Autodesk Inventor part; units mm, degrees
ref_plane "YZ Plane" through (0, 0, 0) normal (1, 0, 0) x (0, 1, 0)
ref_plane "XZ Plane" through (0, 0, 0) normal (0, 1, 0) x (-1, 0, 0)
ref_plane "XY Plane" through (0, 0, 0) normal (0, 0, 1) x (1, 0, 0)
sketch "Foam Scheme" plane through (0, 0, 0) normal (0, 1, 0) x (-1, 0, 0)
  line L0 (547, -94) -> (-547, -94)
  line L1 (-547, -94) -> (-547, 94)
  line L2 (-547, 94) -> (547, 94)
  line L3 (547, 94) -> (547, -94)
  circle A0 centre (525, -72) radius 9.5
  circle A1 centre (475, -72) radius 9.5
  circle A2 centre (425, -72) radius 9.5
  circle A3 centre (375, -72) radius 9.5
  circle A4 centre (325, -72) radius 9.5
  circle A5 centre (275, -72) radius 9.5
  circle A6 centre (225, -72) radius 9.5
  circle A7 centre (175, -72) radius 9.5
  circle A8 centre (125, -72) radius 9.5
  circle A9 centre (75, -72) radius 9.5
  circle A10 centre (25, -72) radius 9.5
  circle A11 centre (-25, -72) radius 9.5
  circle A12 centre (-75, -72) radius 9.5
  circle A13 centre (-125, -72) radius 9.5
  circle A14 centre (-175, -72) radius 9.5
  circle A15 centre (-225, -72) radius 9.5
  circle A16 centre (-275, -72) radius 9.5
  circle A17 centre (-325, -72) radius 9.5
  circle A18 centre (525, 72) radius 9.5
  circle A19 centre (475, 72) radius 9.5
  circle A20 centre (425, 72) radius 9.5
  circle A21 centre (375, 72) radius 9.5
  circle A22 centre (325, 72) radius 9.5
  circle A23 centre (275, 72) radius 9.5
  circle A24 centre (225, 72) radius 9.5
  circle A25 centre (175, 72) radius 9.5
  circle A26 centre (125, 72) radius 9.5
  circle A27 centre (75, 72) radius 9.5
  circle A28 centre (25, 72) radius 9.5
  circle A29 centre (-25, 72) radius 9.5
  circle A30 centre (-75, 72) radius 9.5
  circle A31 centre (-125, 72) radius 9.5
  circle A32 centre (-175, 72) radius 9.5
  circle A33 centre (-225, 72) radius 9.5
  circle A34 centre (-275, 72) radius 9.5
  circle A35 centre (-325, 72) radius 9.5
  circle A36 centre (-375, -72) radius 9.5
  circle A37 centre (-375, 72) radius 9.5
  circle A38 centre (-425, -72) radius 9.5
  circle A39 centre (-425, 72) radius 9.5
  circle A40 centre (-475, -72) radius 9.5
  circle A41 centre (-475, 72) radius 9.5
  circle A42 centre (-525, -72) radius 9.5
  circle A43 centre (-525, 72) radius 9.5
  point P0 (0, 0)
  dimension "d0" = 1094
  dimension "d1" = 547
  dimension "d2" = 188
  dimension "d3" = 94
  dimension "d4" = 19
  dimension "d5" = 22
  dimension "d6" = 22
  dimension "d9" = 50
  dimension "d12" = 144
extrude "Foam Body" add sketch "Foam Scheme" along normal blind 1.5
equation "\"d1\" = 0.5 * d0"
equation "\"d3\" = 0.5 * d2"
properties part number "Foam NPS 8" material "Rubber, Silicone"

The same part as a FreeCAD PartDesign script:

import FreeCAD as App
import Part
import Sketcher

V = App.Vector


def add_polygon(sketch, points):
    """Adds a closed chain of lines whose ends are joined by coincident constraints."""
    first, n = sketch.GeometryCount, len(points)
    for a, b in zip(points, points[1:] + points[:1]):
        sketch.addGeometry(Part.LineSegment(App.Vector(*a, 0), App.Vector(*b, 0)), False)
    for i in range(n):
        sketch.addConstraint(Sketcher.Constraint("Coincident", first + i, 2, first + (i + 1) % n, 1))

doc = App.newDocument("Part")
body = doc.addObject("PartDesign::Body", "Body")

sketch1 = body.newObject("Sketcher::SketchObject", "Sketch")
sketch1.AttachmentSupport = (doc.getObject("XZ_Plane"), [""])
sketch1.MapMode = "FlatFace"
add_polygon(sketch1, [(547, -94), (-547, -94), (-547, 94), (547, 94)])
sketch1.addGeometry(Part.Circle(V(525, -72, 0), V(0, 0, 1), 10), False)
sketch1.addGeometry(Part.Circle(V(475, -72, 0), V(0, 0, 1), 10), False)
sketch1.addGeometry(Part.Circle(V(425, -72, 0), V(0, 0, 1), 10), False)
sketch1.addGeometry(Part.Circle(V(375, -72, 0), V(0, 0, 1), 10), False)
sketch1.addGeometry(Part.Circle(V(325, -72, 0), V(0, 0, 1), 10), False)
sketch1.addGeometry(Part.Circle(V(275, -72, 0), V(0, 0, 1), 10), False)
sketch1.addGeometry(Part.Circle(V(225, -72, 0), V(0, 0, 1), 10), False)
sketch1.addGeometry(Part.Circle(V(175, -72, 0), V(0, 0, 1), 10), False)
sketch1.addGeometry(Part.Circle(V(125, -72, 0), V(0, 0, 1), 10), False)
sketch1.addGeometry(Part.Circle(V(75, -72, 0), V(0, 0, 1), 10), False)
sketch1.addGeometry(Part.Circle(V(25, -72, 0), V(0, 0, 1), 10), False)
sketch1.addGeometry(Part.Circle(V(-25, -72, 0), V(0, 0, 1), 10), False)
sketch1.addGeometry(Part.Circle(V(-75, -72, 0), V(0, 0, 1), 10), False)
sketch1.addGeometry(Part.Circle(V(-125, -72, 0), V(0, 0, 1), 10), False)
sketch1.addGeometry(Part.Circle(V(-175, -72, 0), V(0, 0, 1), 10), False)
sketch1.addGeometry(Part.Circle(V(-225, -72, 0), V(0, 0, 1), 10), False)
sketch1.addGeometry(Part.Circle(V(-275, -72, 0), V(0, 0, 1), 10), False)
sketch1.addGeometry(Part.Circle(V(-325, -72, 0), V(0, 0, 1), 10), False)
sketch1.addGeometry(Part.Circle(V(-375, -72, 0), V(0, 0, 1), 10), False)
sketch1.addGeometry(Part.Circle(V(-425, -72, 0), V(0, 0, 1), 10), False)
sketch1.addGeometry(Part.Circle(V(-475, -72, 0), V(0, 0, 1), 10), False)
sketch1.addGeometry(Part.Circle(V(-525, -72, 0), V(0, 0, 1), 10), False)
sketch1.addGeometry(Part.Circle(V(525, 72, 0), V(0, 0, 1), 10), False)
sketch1.addGeometry(Part.Circle(V(475, 72, 0), V(0, 0, 1), 10), False)
sketch1.addGeometry(Part.Circle(V(425, 72, 0), V(0, 0, 1), 10), False)
sketch1.addGeometry(Part.Circle(V(375, 72, 0), V(0, 0, 1), 10), False)
sketch1.addGeometry(Part.Circle(V(325, 72, 0), V(0, 0, 1), 10), False)
sketch1.addGeometry(Part.Circle(V(275, 72, 0), V(0, 0, 1), 10), False)
sketch1.addGeometry(Part.Circle(V(225, 72, 0), V(0, 0, 1), 10), False)
sketch1.addGeometry(Part.Circle(V(175, 72, 0), V(0, 0, 1), 10), False)
sketch1.addGeometry(Part.Circle(V(125, 72, 0), V(0, 0, 1), 10), False)
sketch1.addGeometry(Part.Circle(V(75, 72, 0), V(0, 0, 1), 10), False)
sketch1.addGeometry(Part.Circle(V(25, 72, 0), V(0, 0, 1), 10), False)
sketch1.addGeometry(Part.Circle(V(-25, 72, 0), V(0, 0, 1), 10), False)
sketch1.addGeometry(Part.Circle(V(-75, 72, 0), V(0, 0, 1), 10), False)
sketch1.addGeometry(Part.Circle(V(-125, 72, 0), V(0, 0, 1), 10), False)
sketch1.addGeometry(Part.Circle(V(-175, 72, 0), V(0, 0, 1), 10), False)
sketch1.addGeometry(Part.Circle(V(-225, 72, 0), V(0, 0, 1), 10), False)
sketch1.addGeometry(Part.Circle(V(-275, 72, 0), V(0, 0, 1), 10), False)
sketch1.addGeometry(Part.Circle(V(-325, 72, 0), V(0, 0, 1), 10), False)
sketch1.addGeometry(Part.Circle(V(-375, 72, 0), V(0, 0, 1), 10), False)
sketch1.addGeometry(Part.Circle(V(-425, 72, 0), V(0, 0, 1), 10), False)
sketch1.addGeometry(Part.Circle(V(-475, 72, 0), V(0, 0, 1), 10), False)
sketch1.addGeometry(Part.Circle(V(-525, 72, 0), V(0, 0, 1), 10), False)
sketch1.addConstraint(Sketcher.Constraint("Horizontal", 0))
sketch1.addConstraint(Sketcher.Constraint("Vertical", 1))
sketch1.addConstraint(Sketcher.Constraint("Horizontal", 2))
sketch1.addConstraint(Sketcher.Constraint("Vertical", 3))
sketch1.addConstraint(Sketcher.Constraint("Equal", 4, 5))
sketch1.addConstraint(Sketcher.Constraint("Equal", 5, 6))
sketch1.addConstraint(Sketcher.Constraint("Equal", 6, 7))
sketch1.addConstraint(Sketcher.Constraint("Equal", 7, 8))
sketch1.addConstraint(Sketcher.Constraint("Equal", 8, 9))
sketch1.addConstraint(Sketcher.Constraint("Equal", 9, 10))
sketch1.addConstraint(Sketcher.Constraint("Equal", 10, 11))
sketch1.addConstraint(Sketcher.Constraint("Equal", 11, 12))
sketch1.addConstraint(Sketcher.Constraint("Equal", 12, 13))
sketch1.addConstraint(Sketcher.Constraint("Equal", 13, 14))
sketch1.addConstraint(Sketcher.Constraint("Equal", 14, 15))
sketch1.addConstraint(Sketcher.Constraint("Equal", 15, 16))
sketch1.addConstraint(Sketcher.Constraint("Equal", 16, 17))
sketch1.addConstraint(Sketcher.Constraint("Equal", 17, 18))
sketch1.addConstraint(Sketcher.Constraint("Equal", 18, 19))
sketch1.addConstraint(Sketcher.Constraint("Equal", 19, 20))
sketch1.addConstraint(Sketcher.Constraint("Equal", 20, 21))
sketch1.addConstraint(Sketcher.Constraint("Equal", 21, 22))
sketch1.addConstraint(Sketcher.Constraint("Equal", 22, 23))
sketch1.addConstraint(Sketcher.Constraint("Equal", 23, 24))
sketch1.addConstraint(Sketcher.Constraint("Equal", 24, 25))
sketch1.addConstraint(Sketcher.Constraint("Equal", 25, 26))
sketch1.addConstraint(Sketcher.Constraint("Equal", 26, 27))
sketch1.addConstraint(Sketcher.Constraint("Equal", 27, 28))
sketch1.addConstraint(Sketcher.Constraint("Equal", 28, 29))
sketch1.addConstraint(Sketcher.Constraint("Equal", 29, 30))
sketch1.addConstraint(Sketcher.Constraint("Equal", 30, 31))
sketch1.addConstraint(Sketcher.Constraint("Equal", 31, 32))
sketch1.addConstraint(Sketcher.Constraint("Equal", 32, 33))
sketch1.addConstraint(Sketcher.Constraint("Equal", 33, 34))
sketch1.addConstraint(Sketcher.Constraint("Equal", 34, 35))
sketch1.addConstraint(Sketcher.Constraint("Equal", 35, 36))
sketch1.addConstraint(Sketcher.Constraint("Equal", 36, 37))
sketch1.addConstraint(Sketcher.Constraint("Equal", 37, 38))
sketch1.addConstraint(Sketcher.Constraint("Equal", 38, 39))
sketch1.addConstraint(Sketcher.Constraint("Equal", 39, 40))
sketch1.addConstraint(Sketcher.Constraint("Equal", 40, 41))
sketch1.addConstraint(Sketcher.Constraint("Equal", 41, 42))
sketch1.addConstraint(Sketcher.Constraint("Equal", 42, 43))
sketch1.addConstraint(Sketcher.Constraint("Equal", 43, 44))
sketch1.addConstraint(Sketcher.Constraint("Equal", 44, 45))
sketch1.addConstraint(Sketcher.Constraint("Equal", 45, 46))
sketch1.addConstraint(Sketcher.Constraint("Equal", 46, 47))
sketch1.addConstraint(Sketcher.Constraint("Symmetric", 25, 3, 26, 3, -1, 1))
sketch1.addConstraint(Sketcher.Constraint("Symmetric", 24, 3, 27, 3, -1, 1))
sketch1.addConstraint(Sketcher.Constraint("Symmetric", 23, 3, 28, 3, -1, 1))
sketch1.addConstraint(Sketcher.Constraint("Symmetric", 22, 3, 29, 3, -1, 1))
sketch1.addConstraint(Sketcher.Constraint("Symmetric", 21, 3, 30, 3, -1, 1))
sketch1.addConstraint(Sketcher.Constraint("Symmetric", 20, 3, 31, 3, -1, 1))
sketch1.addConstraint(Sketcher.Constraint("Symmetric", 19, 3, 32, 3, -1, 1))
sketch1.addConstraint(Sketcher.Constraint("Symmetric", 18, 3, 33, 3, -1, 1))
sketch1.addConstraint(Sketcher.Constraint("Symmetric", 17, 3, 34, 3, -1, 1))
sketch1.addConstraint(Sketcher.Constraint("Symmetric", 16, 3, 35, 3, -1, 1))
sketch1.addConstraint(Sketcher.Constraint("Symmetric", 15, 3, 36, 3, -1, 1))
sketch1.addConstraint(Sketcher.Constraint("Symmetric", 14, 3, 37, 3, -1, 1))
sketch1.addConstraint(Sketcher.Constraint("Symmetric", 13, 3, 38, 3, -1, 1))
sketch1.addConstraint(Sketcher.Constraint("Symmetric", 12, 3, 39, 3, -1, 1))
sketch1.addConstraint(Sketcher.Constraint("Symmetric", 11, 3, 40, 3, -1, 1))
sketch1.addConstraint(Sketcher.Constraint("Symmetric", 10, 3, 41, 3, -1, 1))
sketch1.addConstraint(Sketcher.Constraint("Symmetric", 9, 3, 42, 3, -1, 1))
sketch1.addConstraint(Sketcher.Constraint("Symmetric", 8, 3, 43, 3, -1, 1))
sketch1.addConstraint(Sketcher.Constraint("Symmetric", 7, 3, 44, 3, -1, 1))
sketch1.addConstraint(Sketcher.Constraint("Symmetric", 6, 3, 45, 3, -1, 1))
sketch1.addConstraint(Sketcher.Constraint("Symmetric", 5, 3, 46, 3, -1, 1))
sketch1.addConstraint(Sketcher.Constraint("Symmetric", 4, 3, 47, 3, -1, 1))
sketch1.addConstraint(Sketcher.Constraint("Symmetric", 0, 2, 2, 2, -1, 1))
sketch1.addConstraint(Sketcher.Constraint("Symmetric", 14, 3, 15, 3, -2))
sketch1.addConstraint(Sketcher.Constraint("Symmetric", 13, 3, 16, 3, -2))
sketch1.addConstraint(Sketcher.Constraint("Symmetric", 12, 3, 17, 3, -2))
sketch1.addConstraint(Sketcher.Constraint("Symmetric", 11, 3, 18, 3, -2))
sketch1.addConstraint(Sketcher.Constraint("Symmetric", 10, 3, 19, 3, -2))
sketch1.addConstraint(Sketcher.Constraint("Symmetric", 9, 3, 20, 3, -2))
sketch1.addConstraint(Sketcher.Constraint("Symmetric", 8, 3, 21, 3, -2))
sketch1.addConstraint(Sketcher.Constraint("Symmetric", 7, 3, 22, 3, -2))
sketch1.addConstraint(Sketcher.Constraint("Symmetric", 6, 3, 23, 3, -2))
sketch1.addConstraint(Sketcher.Constraint("Symmetric", 5, 3, 24, 3, -2))
sketch1.addConstraint(Sketcher.Constraint("Symmetric", 4, 3, 25, 3, -2))
sketch1.addConstraint(Sketcher.Constraint("Horizontal", 4, 3, 5, 3))
sketch1.addConstraint(Sketcher.Constraint("Horizontal", 5, 3, 6, 3))
sketch1.addConstraint(Sketcher.Constraint("Horizontal", 6, 3, 7, 3))
sketch1.addConstraint(Sketcher.Constraint("Horizontal", 7, 3, 8, 3))
sketch1.addConstraint(Sketcher.Constraint("Horizontal", 8, 3, 9, 3))
sketch1.addConstraint(Sketcher.Constraint("Horizontal", 9, 3, 10, 3))
sketch1.addConstraint(Sketcher.Constraint("Horizontal", 10, 3, 11, 3))
sketch1.addConstraint(Sketcher.Constraint("Horizontal", 11, 3, 12, 3))
sketch1.addConstraint(Sketcher.Constraint("Horizontal", 12, 3, 13, 3))
sketch1.addConstraint(Sketcher.Constraint("Horizontal", 13, 3, 14, 3))
sketch1.addConstraint(Sketcher.Constraint("Diameter", 4, 19.0))
sketch1.addConstraint(Sketcher.Constraint("DistanceX", 0, 2, 0, 1, 1094.0))
sketch1.addConstraint(Sketcher.Constraint("DistanceY", 1, 1, 1, 2, 188.0))
sketch1.addConstraint(Sketcher.Constraint("DistanceX", 5, 3, 4, 3, 50.0))
sketch1.addConstraint(Sketcher.Constraint("DistanceX", 6, 3, 5, 3, 50.0))
sketch1.addConstraint(Sketcher.Constraint("DistanceX", 7, 3, 6, 3, 50.0))
sketch1.addConstraint(Sketcher.Constraint("DistanceX", 8, 3, 7, 3, 50.0))
sketch1.addConstraint(Sketcher.Constraint("DistanceX", 9, 3, 8, 3, 50.0))
sketch1.addConstraint(Sketcher.Constraint("DistanceX", 10, 3, 9, 3, 50.0))
sketch1.addConstraint(Sketcher.Constraint("DistanceX", 11, 3, 10, 3, 50.0))
sketch1.addConstraint(Sketcher.Constraint("DistanceX", 12, 3, 11, 3, 50.0))
sketch1.addConstraint(Sketcher.Constraint("DistanceX", 13, 3, 12, 3, 50.0))
sketch1.addConstraint(Sketcher.Constraint("DistanceX", 14, 3, 13, 3, 50.0))
sketch1.addConstraint(Sketcher.Constraint("DistanceX", 15, 3, 14, 3, 50.0))
sketch1.addConstraint(Sketcher.Constraint("DistanceY", 4, 3, 26, 3, 144.0))
pad1 = body.newObject("PartDesign::Pad", "Pad")
pad1.Profile = sketch1
pad1.Length = 1.5
pad1.Reversed = True

doc.recompute()
